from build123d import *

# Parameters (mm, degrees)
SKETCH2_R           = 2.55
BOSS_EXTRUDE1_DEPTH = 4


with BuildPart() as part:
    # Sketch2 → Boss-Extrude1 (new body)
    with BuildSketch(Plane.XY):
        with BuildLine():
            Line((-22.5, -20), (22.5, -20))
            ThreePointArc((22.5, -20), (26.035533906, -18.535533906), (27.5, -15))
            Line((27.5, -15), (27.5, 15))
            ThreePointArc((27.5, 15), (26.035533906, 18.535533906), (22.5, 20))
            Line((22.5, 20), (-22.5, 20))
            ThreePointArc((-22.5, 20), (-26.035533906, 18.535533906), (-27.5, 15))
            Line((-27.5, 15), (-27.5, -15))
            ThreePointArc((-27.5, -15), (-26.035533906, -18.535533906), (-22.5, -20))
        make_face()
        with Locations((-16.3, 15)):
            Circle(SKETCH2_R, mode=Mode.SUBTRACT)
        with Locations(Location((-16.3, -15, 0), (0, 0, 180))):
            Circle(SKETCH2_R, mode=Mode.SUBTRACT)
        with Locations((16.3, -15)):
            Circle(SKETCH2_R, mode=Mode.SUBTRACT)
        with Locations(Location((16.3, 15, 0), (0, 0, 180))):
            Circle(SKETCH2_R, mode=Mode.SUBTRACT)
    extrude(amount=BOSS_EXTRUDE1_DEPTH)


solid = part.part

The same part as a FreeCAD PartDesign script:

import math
import FreeCAD as App
import Part
import Sketcher

V = App.Vector

doc = App.newDocument("Part")
body = doc.addObject("PartDesign::Body", "Body")

sketch1 = body.newObject("Sketcher::SketchObject", "Sketch")
sketch1.AttachmentSupport = (doc.getObject("XY_Plane"), [""])
sketch1.MapMode = "FlatFace"
sketch1.addGeometry(Part.LineSegment(V(-22.5, -20, 0), V(22.5, -20, 0)), False)
sketch1.addGeometry(Part.ArcOfCircle(Part.Circle(V(22.5, -15, 0), V(0, 0, 1), 5), math.radians(-90), math.radians(0)), False)
sketch1.addGeometry(Part.LineSegment(V(27.5, -15, 0), V(27.5, 15, 0)), False)
sketch1.addGeometry(Part.ArcOfCircle(Part.Circle(V(22.5, 15, 0), V(0, 0, 1), 5), math.radians(0), math.radians(90)), False)
sketch1.addGeometry(Part.LineSegment(V(22.5, 20, 0), V(-22.5, 20, 0)), False)
sketch1.addGeometry(Part.ArcOfCircle(Part.Circle(V(-22.5, 15, 0), V(0, 0, 1), 5), math.radians(90), math.radians(180)), False)
sketch1.addGeometry(Part.LineSegment(V(-27.5, 15, 0), V(-27.5, -15, 0)), False)
sketch1.addGeometry(Part.ArcOfCircle(Part.Circle(V(-22.5, -15, 0), V(0, 0, 1), 5), math.radians(180), math.radians(270)), False)
sketch1.addGeometry(Part.Circle(V(-16.3, -15, 0), V(0, 0, 1), 2.55), False)
sketch1.addGeometry(Part.Circle(V(16.3, -15, 0), V(0, 0, 1), 2.55), False)
sketch1.addGeometry(Part.Circle(V(-16.3, 15, 0), V(0, 0, 1), 2.55), False)
sketch1.addGeometry(Part.Circle(V(16.3, 15, 0), V(0, 0, 1), 2.55), False)
sketch1.addConstraint(Sketcher.Constraint("Tangent", 0, 2, 1, 1))
sketch1.addConstraint(Sketcher.Constraint("Tangent", 1, 2, 2, 1))
sketch1.addConstraint(Sketcher.Constraint("Tangent", 2, 2, 3, 1))
sketch1.addConstraint(Sketcher.Constraint("Tangent", 3, 2, 4, 1))
sketch1.addConstraint(Sketcher.Constraint("Tangent", 4, 2, 5, 1))
sketch1.addConstraint(Sketcher.Constraint("Tangent", 5, 2, 6, 1))
sketch1.addConstraint(Sketcher.Constraint("Tangent", 6, 2, 7, 1))
sketch1.addConstraint(Sketcher.Constraint("Tangent", 7, 2, 0, 1))
sketch1.addConstraint(Sketcher.Constraint("Horizontal", 0))
sketch1.addConstraint(Sketcher.Constraint("Vertical", 2))
sketch1.addConstraint(Sketcher.Constraint("Horizontal", 4))
sketch1.addConstraint(Sketcher.Constraint("Vertical", 6))
sketch1.addConstraint(Sketcher.Constraint("Equal", 1, 3))
sketch1.addConstraint(Sketcher.Constraint("Equal", 3, 5))
sketch1.addConstraint(Sketcher.Constraint("Equal", 5, 7))
sketch1.addConstraint(Sketcher.Constraint("Equal", 8, 9))
sketch1.addConstraint(Sketcher.Constraint("Equal", 9, 10))
sketch1.addConstraint(Sketcher.Constraint("Equal", 10, 11))
sketch1.addConstraint(Sketcher.Constraint("Symmetric", 1, 3, 5, 3, -1, 1))
sketch1.addConstraint(Sketcher.Constraint("Symmetric", 9, 3, 10, 3, -1, 1))
sketch1.addConstraint(Sketcher.Constraint("Symmetric", 8, 3, 11, 3, -1, 1))
sketch1.addConstraint(Sketcher.Constraint("Symmetric", 8, 3, 9, 3, -2))
sketch1.addConstraint(Sketcher.Constraint("Horizontal", 7, 3, 8, 3))
sketch1.addConstraint(Sketcher.Constraint("Radius", 1, 5.0))
sketch1.addConstraint(Sketcher.Constraint("Diameter", 8, 5.1))
sketch1.addConstraint(Sketcher.Constraint("DistanceX", 0, 1, 0, 2, 45.0))
sketch1.addConstraint(Sketcher.Constraint("DistanceY", 2, 1, 2, 2, 30.0))
sketch1.addConstraint(Sketcher.Constraint("DistanceX", 8, 3, -1, 1, 16.3))
pad1 = body.newObject("PartDesign::Pad", "Pad")
pad1.Profile = sketch1
pad1.Length = 4

doc.recompute()
